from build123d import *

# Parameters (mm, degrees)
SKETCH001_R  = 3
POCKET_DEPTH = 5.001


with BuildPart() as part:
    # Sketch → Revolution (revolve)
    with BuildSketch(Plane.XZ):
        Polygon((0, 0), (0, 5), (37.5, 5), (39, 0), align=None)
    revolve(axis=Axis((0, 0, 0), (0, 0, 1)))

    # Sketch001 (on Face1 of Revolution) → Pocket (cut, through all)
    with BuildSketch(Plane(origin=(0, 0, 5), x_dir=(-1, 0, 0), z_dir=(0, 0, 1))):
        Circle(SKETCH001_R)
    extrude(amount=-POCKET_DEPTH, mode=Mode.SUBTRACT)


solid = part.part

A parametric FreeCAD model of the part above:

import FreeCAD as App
import Part
import Sketcher

V = App.Vector


def add_polygon(sketch, points):
    """Adds a closed chain of lines whose ends are joined by coincident constraints."""
    first, n = sketch.GeometryCount, len(points)
    for a, b in zip(points, points[1:] + points[:1]):
        sketch.addGeometry(Part.LineSegment(App.Vector(*a, 0), App.Vector(*b, 0)), False)
    for i in range(n):
        sketch.addConstraint(Sketcher.Constraint("Coincident", first + i, 2, first + (i + 1) % n, 1))

doc = App.newDocument("Part")
body = doc.addObject("PartDesign::Body", "Body")

# Sketch on XZ plane
sketch1 = body.newObject("Sketcher::SketchObject", "Sketch")
sketch1.AttachmentSupport = (doc.getObject("XZ_Plane"), [""])
sketch1.MapMode = "FlatFace"
add_polygon(sketch1, [(0, 5), (0, 0), (39, 0), (38, 5)])  # lines 0-3
sketch1.addConstraint([
    Sketcher.Constraint("Vertical", 0),
    Sketcher.Constraint("Horizontal", 1),
    Sketcher.Constraint("Horizontal", 3),
    Sketcher.Constraint("Coincident", 0, 2, -1, 1),
    Sketcher.Constraint("DistanceX", 1, 1, 1, 2, 39.0),
    Sketcher.Constraint("DistanceY", 0, 2, 0, 1, 5.0),
    Sketcher.Constraint("DistanceX", 3, 2, 3, 1, 37.5),
])
revolution = body.newObject("PartDesign::Revolution", "Revolution")
revolution.Profile = sketch1
revolution.ReferenceAxis = (sketch1, ["V_Axis"])
revolution.Angle = 360

# Sketch on XY plane
sketch2 = body.newObject("Sketcher::SketchObject", "Sketch001")
sketch2.AttachmentSupport = (doc.getObject("XY_Plane"), [""])
sketch2.MapMode = "FlatFace"
sketch2.AttachmentOffset = App.Placement(V(0, 0, 5), App.Rotation())
sketch2.addGeometry(Part.Circle(V(0, 0, 0), V(0, 0, 1), 3), False)
sketch2.addConstraint([
    Sketcher.Constraint("Coincident", 0, 3, -1, 1),
    Sketcher.Constraint("Diameter", 0, 6.0),
])
pocket1 = body.newObject("PartDesign::Pocket", "Pocket")
pocket1.Profile = sketch2
pocket1.Type = "ThroughAll"

doc.recompute()
